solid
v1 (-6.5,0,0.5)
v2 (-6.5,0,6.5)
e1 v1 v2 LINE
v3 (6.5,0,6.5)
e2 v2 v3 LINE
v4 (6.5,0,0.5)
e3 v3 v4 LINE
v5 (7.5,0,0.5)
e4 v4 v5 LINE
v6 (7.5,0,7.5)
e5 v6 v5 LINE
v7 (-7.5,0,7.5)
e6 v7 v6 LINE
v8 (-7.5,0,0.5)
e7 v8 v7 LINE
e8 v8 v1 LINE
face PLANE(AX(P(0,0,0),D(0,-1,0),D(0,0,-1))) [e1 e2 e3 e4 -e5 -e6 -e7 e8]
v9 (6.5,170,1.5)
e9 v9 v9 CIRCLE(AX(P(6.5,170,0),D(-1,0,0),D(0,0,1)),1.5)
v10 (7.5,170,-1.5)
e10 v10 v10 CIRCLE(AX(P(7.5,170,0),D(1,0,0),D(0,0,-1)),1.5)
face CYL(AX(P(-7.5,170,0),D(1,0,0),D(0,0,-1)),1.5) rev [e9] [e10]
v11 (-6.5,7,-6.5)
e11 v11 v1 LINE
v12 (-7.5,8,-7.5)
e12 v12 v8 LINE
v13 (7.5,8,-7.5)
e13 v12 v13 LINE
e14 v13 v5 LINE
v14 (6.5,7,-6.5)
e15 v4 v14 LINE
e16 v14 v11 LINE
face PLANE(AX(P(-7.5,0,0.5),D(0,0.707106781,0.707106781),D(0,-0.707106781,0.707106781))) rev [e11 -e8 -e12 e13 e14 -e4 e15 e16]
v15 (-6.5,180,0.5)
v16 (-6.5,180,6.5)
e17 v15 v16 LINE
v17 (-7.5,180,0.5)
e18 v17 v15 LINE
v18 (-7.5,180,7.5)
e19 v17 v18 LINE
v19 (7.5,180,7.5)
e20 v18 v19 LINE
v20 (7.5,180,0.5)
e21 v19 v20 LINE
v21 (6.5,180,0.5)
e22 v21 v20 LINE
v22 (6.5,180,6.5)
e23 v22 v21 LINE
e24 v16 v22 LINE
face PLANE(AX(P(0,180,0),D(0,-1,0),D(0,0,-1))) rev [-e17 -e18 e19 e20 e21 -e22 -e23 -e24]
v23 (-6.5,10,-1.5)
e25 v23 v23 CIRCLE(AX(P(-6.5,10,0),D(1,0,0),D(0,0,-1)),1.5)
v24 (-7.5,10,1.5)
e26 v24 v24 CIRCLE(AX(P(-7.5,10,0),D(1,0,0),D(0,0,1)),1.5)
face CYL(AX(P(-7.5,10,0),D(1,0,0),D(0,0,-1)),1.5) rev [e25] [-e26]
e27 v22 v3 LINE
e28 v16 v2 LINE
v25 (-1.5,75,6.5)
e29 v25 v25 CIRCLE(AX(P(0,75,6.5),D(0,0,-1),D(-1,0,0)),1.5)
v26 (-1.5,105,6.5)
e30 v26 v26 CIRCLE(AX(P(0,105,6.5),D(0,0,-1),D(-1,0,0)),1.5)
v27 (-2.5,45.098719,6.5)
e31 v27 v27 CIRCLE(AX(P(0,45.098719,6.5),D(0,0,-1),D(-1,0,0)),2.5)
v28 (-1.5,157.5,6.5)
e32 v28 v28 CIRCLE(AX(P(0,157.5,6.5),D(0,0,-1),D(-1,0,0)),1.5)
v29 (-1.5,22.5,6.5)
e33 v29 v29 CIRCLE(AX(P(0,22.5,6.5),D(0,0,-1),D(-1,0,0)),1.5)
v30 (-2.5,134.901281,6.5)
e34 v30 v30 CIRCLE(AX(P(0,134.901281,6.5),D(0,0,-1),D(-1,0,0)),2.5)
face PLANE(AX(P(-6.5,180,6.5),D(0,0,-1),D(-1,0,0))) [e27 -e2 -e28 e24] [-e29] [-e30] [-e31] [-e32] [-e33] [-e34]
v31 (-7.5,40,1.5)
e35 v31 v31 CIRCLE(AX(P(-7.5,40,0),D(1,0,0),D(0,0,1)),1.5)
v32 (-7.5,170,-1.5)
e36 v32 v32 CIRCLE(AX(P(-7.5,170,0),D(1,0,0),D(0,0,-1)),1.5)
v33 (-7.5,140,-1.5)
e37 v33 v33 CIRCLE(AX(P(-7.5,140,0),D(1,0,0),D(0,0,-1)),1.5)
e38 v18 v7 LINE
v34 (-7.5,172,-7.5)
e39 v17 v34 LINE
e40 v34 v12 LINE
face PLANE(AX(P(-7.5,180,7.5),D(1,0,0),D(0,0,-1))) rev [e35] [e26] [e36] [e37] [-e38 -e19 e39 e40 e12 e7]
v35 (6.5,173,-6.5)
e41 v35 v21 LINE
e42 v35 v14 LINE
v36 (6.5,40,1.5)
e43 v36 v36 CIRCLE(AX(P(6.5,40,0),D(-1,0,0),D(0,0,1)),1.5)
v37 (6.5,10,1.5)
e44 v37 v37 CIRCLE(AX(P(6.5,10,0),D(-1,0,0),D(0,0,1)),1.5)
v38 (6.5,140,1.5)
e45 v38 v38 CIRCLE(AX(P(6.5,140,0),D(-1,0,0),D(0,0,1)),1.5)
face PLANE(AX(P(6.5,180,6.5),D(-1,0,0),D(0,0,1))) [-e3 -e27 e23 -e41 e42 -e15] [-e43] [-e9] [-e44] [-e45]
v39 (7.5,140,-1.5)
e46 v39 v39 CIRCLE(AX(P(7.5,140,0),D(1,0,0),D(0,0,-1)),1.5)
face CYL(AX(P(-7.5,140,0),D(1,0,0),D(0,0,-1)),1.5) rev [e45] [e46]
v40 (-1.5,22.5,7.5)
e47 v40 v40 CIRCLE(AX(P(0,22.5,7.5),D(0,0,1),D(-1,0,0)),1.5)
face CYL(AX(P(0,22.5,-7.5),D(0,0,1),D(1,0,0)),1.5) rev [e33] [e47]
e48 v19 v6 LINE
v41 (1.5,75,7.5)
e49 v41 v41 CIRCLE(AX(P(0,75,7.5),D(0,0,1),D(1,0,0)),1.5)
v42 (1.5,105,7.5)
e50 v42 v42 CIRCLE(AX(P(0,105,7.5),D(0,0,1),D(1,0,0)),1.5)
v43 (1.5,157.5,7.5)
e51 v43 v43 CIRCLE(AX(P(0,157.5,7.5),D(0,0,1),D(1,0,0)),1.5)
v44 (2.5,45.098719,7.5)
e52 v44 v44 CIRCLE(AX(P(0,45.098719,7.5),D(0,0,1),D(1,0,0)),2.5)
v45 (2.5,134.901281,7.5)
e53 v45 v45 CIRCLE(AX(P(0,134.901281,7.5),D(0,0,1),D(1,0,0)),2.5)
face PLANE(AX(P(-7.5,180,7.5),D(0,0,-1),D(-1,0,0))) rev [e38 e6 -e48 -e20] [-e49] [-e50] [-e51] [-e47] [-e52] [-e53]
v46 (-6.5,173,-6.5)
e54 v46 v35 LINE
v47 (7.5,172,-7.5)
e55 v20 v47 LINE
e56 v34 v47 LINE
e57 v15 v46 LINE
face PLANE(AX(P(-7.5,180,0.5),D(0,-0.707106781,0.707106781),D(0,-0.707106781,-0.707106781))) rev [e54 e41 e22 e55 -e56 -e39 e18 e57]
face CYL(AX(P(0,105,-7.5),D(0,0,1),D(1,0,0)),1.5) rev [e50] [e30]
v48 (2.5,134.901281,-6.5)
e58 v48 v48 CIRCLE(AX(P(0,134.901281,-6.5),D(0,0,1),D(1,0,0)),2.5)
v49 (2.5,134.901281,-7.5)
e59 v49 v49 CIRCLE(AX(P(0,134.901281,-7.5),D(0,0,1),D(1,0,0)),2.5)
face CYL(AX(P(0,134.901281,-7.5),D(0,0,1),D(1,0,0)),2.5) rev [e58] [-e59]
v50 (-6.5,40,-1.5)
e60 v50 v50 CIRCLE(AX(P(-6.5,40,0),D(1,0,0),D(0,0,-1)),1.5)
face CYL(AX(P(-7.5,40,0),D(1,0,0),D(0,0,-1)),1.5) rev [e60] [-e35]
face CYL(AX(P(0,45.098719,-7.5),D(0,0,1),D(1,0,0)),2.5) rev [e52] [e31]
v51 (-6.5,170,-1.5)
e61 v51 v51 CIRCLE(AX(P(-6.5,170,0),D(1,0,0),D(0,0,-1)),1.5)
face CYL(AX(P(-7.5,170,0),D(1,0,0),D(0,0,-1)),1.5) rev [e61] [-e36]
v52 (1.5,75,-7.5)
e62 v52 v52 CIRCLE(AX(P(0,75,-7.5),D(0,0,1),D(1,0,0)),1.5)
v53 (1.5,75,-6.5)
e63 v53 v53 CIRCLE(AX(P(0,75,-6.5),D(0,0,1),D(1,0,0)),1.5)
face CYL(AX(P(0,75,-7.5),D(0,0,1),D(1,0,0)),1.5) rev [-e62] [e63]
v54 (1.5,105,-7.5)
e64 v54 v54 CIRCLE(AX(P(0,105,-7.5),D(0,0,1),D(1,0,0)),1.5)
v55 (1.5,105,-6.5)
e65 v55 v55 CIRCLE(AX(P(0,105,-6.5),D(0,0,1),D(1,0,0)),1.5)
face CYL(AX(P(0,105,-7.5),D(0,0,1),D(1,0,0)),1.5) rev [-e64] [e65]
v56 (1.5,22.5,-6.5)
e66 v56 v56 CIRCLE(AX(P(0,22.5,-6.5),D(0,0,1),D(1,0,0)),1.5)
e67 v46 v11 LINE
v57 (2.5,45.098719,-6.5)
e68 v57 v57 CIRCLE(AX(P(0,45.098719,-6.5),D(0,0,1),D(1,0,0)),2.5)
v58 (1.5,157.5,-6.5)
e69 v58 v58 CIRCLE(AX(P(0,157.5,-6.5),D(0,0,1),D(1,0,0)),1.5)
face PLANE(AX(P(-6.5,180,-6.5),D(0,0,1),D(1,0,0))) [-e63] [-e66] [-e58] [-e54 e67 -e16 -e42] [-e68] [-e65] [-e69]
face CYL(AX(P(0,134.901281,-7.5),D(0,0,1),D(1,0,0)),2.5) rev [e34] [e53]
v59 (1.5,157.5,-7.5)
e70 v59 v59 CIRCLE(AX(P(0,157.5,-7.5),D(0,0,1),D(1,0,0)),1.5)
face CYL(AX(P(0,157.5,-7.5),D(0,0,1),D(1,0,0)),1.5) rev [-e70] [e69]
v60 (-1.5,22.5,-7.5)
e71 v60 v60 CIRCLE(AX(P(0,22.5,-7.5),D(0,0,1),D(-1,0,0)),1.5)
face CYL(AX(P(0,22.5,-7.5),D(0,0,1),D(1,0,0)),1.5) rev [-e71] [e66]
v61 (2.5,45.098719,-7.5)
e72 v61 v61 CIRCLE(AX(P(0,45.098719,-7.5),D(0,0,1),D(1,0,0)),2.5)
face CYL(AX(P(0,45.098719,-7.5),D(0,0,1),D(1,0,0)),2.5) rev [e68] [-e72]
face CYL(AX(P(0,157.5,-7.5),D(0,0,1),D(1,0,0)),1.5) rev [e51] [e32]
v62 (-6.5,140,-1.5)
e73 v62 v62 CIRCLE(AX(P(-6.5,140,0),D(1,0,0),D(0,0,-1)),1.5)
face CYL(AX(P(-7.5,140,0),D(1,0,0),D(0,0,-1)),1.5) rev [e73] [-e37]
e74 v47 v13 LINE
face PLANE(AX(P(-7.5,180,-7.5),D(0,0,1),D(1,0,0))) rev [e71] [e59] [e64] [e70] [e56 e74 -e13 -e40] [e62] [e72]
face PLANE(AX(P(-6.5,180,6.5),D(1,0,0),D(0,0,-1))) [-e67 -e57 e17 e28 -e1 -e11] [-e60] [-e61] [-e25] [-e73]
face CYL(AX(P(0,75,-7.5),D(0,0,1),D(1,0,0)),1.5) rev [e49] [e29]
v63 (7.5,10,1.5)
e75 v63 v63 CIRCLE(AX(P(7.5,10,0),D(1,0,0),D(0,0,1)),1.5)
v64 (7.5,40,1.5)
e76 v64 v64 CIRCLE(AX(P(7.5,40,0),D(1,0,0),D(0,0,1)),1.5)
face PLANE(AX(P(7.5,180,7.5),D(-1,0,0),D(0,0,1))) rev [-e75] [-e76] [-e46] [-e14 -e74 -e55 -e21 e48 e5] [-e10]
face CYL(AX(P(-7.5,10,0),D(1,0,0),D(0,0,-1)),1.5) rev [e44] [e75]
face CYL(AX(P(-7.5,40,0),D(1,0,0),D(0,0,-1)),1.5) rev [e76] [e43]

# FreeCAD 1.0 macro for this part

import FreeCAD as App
import Part
import Sketcher
from FreeCAD import Vector
Q = App.Units.Quantity


def add_polygon(sketch, points):
    """Adds a closed chain of lines whose ends are joined by coincident constraints."""
    first, n = sketch.GeometryCount, len(points)
    for a, b in zip(points, points[1:] + points[:1]):
        sketch.addGeometry(Part.LineSegment(App.Vector(*a, 0), App.Vector(*b, 0)), False)
    for i in range(n):
        sketch.addConstraint(Sketcher.Constraint("Coincident", first + i, 2, first + (i + 1) % n, 1))

doc = App.newDocument("Part")
body = doc.addObject("PartDesign::Body", "Body")

# Sketch on XZ plane
sketch1 = doc.addObject("Sketcher::SketchObject", "Sketch")
body.addObject(sketch1)
sketch1.AttachmentSupport = (doc.XZ_Plane, [""])
sketch1.MapMode = "FlatFace"
add_polygon(sketch1, [(-8, -8), (-8, 8), (8, 8), (8, -8)])  # lines 0-3
add_polygon(sketch1, [(6, 6), (-6, 6), (-6, -6), (6, -6)])  # lines 4-7
sketch1.addConstraint([
    Sketcher.Constraint("Vertical", 0),
    Sketcher.Constraint("Horizontal", 1),
    Sketcher.Constraint("Vertical", 2),
    Sketcher.Constraint("Horizontal", 3),
    Sketcher.Constraint("Horizontal", 4),
    Sketcher.Constraint("Vertical", 5),
    Sketcher.Constraint("Horizontal", 6),
    Sketcher.Constraint("Vertical", 7),
    Sketcher.Constraint("Symmetric", 0, 2, 2, 2, -1, 1),
    Sketcher.Constraint("Symmetric", 4, 2, 6, 2, -1, 1),
    Sketcher.Constraint("Equal", 3, 0),
    Sketcher.Constraint("Equal", 6, 5),
    Sketcher.Constraint("DistanceX", 1, 1, 1, 2, Q("15 mm")),
    Sketcher.Constraint("DistanceX", 4, 2, 4, 1, Q("13 mm")),
])
pad1 = doc.addObject("PartDesign::Pad", "Pad")
body.addObject(pad1)
pad1.Profile = sketch1
pad1.Length = 180
pad1.Reversed = True

# Sketch on XY plane
sketch2 = doc.addObject("Sketcher::SketchObject", "Sketch001")
body.addObject(sketch2)
sketch2.AttachmentSupport = (doc.XY_Plane, [""])
sketch2.MapMode = "FlatFace"
sketch2.AttachmentOffset = App.Placement(Vector(0, 0, 7.5), App.Rotation())
sketch2.addGeometry([
    Part.Circle(Vector(0, 134.9, 0), Vector(0, 0, 1), 2.5),  # 0
    Part.Circle(Vector(0, 45.1, 0), Vector(0, 0, 1), 2.5),  # 1
    Part.Circle(Vector(0, 187.5, 0), Vector(0, 0, 1), 1.5),  # 2
    Part.Circle(Vector(0, 157.5, 0), Vector(0, 0, 1), 1.5),  # 3
    Part.Circle(Vector(0, -7.5, 0), Vector(0, 0, 1), 1.5),  # 4
    Part.Circle(Vector(0, 22.5, 0), Vector(0, 0, 1), 1.5),  # 5
    Part.Circle(Vector(0, 105, 0), Vector(0, 0, 1), 1.5),  # 6
    Part.Circle(Vector(0, 75, 0), Vector(0, 0, 1), 1.5),  # 7
], False)
sketch2.addConstraint([
    Sketcher.Constraint("Equal", 0, 1),
    Sketcher.Constraint("Equal", 2, 3),
    Sketcher.Constraint("Equal", 3, 4),
    Sketcher.Constraint("Equal", 4, 5),
    Sketcher.Constraint("Equal", 5, 6),
    Sketcher.Constraint("Equal", 6, 7),
    Sketcher.Constraint("PointOnObject", 0, 3, -2),
    Sketcher.Constraint("PointOnObject", 1, 3, -2),
    Sketcher.Constraint("PointOnObject", 2, 3, -2),
    Sketcher.Constraint("PointOnObject", 3, 3, -2),
    Sketcher.Constraint("PointOnObject", 4, 3, -2),
    Sketcher.Constraint("PointOnObject", 5, 3, -2),
    Sketcher.Constraint("PointOnObject", 6, 3, -2),
    Sketcher.Constraint("PointOnObject", 7, 3, -2),
    Sketcher.Constraint("Diameter", 0, Q("5 mm")),
    Sketcher.Constraint("Diameter", 2, Q("3 mm")),
    Sketcher.Constraint("DistanceY", -1, 1, 6, 3, Q("105 mm")),
    Sketcher.Constraint("DistanceY", -1, 1, 7, 3, Q("75 mm")),
    Sketcher.Constraint("DistanceY", 3, 3, 2, 3, Q("30 mm")),
    Sketcher.Constraint("DistanceY", 4, 3, 3, 3, Q("165 mm")),
    Sketcher.Constraint("DistanceY", 4, 3, 5, 3, Q("30 mm")),
    Sketcher.Constraint("DistanceY", -1, 1, 2, 3, Q("187.5 mm")),
    Sketcher.Constraint("DistanceY", -1, 1, 0, 3, Q("134.901281 mm")),
    Sketcher.Constraint("DistanceY", -1, 1, 1, 3, Q("45.098719 mm")),
])
pocket1 = doc.addObject("PartDesign::Pocket", "Pocket")
body.addObject(pocket1)
pocket1.Profile = sketch2
pocket1.Type = "ThroughAll"

# Sketch on YZ plane
sketch3 = doc.addObject("Sketcher::SketchObject", "Sketch002")
body.addObject(sketch3)
sketch3.AttachmentSupport = (doc.YZ_Plane, [""])
sketch3.MapMode = "FlatFace"
sketch3.AttachmentOffset = App.Placement(Vector(0, 0, 7.5), App.Rotation())
sketch3.addGeometry(Part.Circle(Vector(170, 0, 0), Vector(0, 0, 1), 1.5), False)  # 0
sketch3.addGeometry(Part.Circle(Vector(140, 0, 0), Vector(0, 0, 1), 1.5), False)  # 1
sketch3.addGeometry(Part.Circle(Vector(10, 0, 0), Vector(0, 0, 1), 1.5), False)  # 2
sketch3.addGeometry(Part.Circle(Vector(40, 0, 0), Vector(0, 0, 1), 1.5), False)  # 3
add_polygon(sketch3, [(172, -7.5), (180, -7.5), (180, 0.5)])  # lines 4-6
add_polygon(sketch3, [(8, -7.5), (0, 0.5), (0, -7.5)])  # lines 7-9
sketch3.addConstraint([
    Sketcher.Constraint("Horizontal", 4),
    Sketcher.Constraint("Vertical", 5),
    Sketcher.Constraint("Vertical", 8),
    Sketcher.Constraint("Horizontal", 9),
    Sketcher.Constraint("Equal", 0, 1),
    Sketcher.Constraint("Equal", 1, 2),
    Sketcher.Constraint("Equal", 2, 3),
    Sketcher.Constraint("PointOnObject", 0, 3, -1),
    Sketcher.Constraint("PointOnObject", 1, 3, -1),
    Sketcher.Constraint("PointOnObject", 2, 3, -1),
    Sketcher.Constraint("PointOnObject", 3, 3, -1),
    Sketcher.Constraint("PointOnObject", 7, 2, -2),
    Sketcher.Constraint("Perpendicular", 6, 7),
    Sketcher.Constraint("Horizontal", 5, 2, 7, 2),
    Sketcher.Constraint("Horizontal", 6, 2, 8, 2),
    Sketcher.Constraint("Equal", 4, 9),
    Sketcher.Constraint("Diameter", 0, Q("3 mm")),
    Sketcher.Constraint("DistanceX", 4, 1, 4, 2, Q("8 mm")),
    Sketcher.Constraint("DistanceX", -1, 1, 0, 3, Q("170 mm")),
    Sketcher.Constraint("DistanceX", -1, 1, 1, 3, Q("140 mm")),
    Sketcher.Constraint("DistanceX", -1, 1, 2, 3, Q("10 mm")),
    Sketcher.Constraint("DistanceX", -1, 1, 3, 3, Q("40 mm")),
    Sketcher.Constraint("DistanceX", -1, 1, 4, 2, Q("180 mm")),
    Sketcher.Constraint("DistanceY", 4, 2, -1, 1, Q("7.5 mm")),
])
pocket2 = doc.addObject("PartDesign::Pocket", "Pocket001")
body.addObject(pocket2)
pocket2.Profile = sketch3
pocket2.Type = "ThroughAll"

doc.recompute()
